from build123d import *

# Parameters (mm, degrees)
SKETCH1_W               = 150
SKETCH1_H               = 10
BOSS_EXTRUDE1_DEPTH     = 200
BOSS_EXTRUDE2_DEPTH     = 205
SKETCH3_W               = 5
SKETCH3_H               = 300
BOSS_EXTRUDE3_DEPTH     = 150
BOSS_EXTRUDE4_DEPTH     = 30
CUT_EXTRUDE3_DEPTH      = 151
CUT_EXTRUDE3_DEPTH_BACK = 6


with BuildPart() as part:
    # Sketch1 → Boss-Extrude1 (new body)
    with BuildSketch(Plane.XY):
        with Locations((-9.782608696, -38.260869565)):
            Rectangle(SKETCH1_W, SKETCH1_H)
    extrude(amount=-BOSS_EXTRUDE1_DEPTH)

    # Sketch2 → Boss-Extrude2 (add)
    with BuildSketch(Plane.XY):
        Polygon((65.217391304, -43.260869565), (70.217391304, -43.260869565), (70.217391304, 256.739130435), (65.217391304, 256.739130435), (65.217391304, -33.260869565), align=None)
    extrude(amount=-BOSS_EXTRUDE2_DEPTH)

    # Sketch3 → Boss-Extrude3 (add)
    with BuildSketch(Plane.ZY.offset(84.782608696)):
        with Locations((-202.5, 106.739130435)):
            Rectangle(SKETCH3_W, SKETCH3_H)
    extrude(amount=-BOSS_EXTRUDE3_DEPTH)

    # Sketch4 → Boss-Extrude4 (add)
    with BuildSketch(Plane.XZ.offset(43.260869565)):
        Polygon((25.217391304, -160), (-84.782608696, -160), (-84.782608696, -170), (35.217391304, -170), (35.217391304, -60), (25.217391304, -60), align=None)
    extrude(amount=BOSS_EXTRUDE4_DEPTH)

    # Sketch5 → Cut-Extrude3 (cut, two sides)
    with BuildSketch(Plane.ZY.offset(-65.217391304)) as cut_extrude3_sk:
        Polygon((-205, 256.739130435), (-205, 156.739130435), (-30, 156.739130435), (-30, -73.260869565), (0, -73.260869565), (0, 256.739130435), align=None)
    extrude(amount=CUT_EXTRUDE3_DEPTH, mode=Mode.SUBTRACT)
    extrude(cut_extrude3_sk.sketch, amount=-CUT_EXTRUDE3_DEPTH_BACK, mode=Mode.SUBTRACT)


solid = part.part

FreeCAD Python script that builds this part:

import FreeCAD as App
import Part
import Sketcher
Q = App.Units.Quantity


def add_polygon(sketch, points):
    """Adds a closed chain of lines whose ends are joined by coincident constraints."""
    first, n = sketch.GeometryCount, len(points)
    for a, b in zip(points, points[1:] + points[:1]):
        sketch.addGeometry(Part.LineSegment(App.Vector(*a, 0), App.Vector(*b, 0)), False)
    for i in range(n):
        sketch.addConstraint(Sketcher.Constraint("Coincident", first + i, 2, first + (i + 1) % n, 1))

doc = App.newDocument("Part")
params = doc.addObject("Spreadsheet::Sheet", "Params")
for row, (alias, value) in enumerate([
    ("sketch1_width", "150 mm"),
    ("sketch1_height", "10 mm"),
    ("pad1_length", "200 mm"),
    ("sketch2_width", "5 mm"),
    ("sketch2_height", "300 mm"),
    ("pad2_length", "205 mm"),
    ("sketch3_width", "300 mm"),
    ("sketch3_height", "5 mm"),
    ("pad3_length", "150 mm"),
    ("sketch4_width", "110 mm"),
    ("sketch4_width2", "120 mm"),
    ("pad4_length", "30 mm"),
    ("sketch5_width", "100 mm"),
    ("sketch5_width2", "230 mm"),
    ("sketch5_height", "175 mm"),
    ("sketch5_height2", "30 mm"),
], start=1):
    params.set(f"A{row}", alias)
    params.set(f"B{row}", "=" + value)
    params.setAlias(f"B{row}", alias)

body = doc.addObject("PartDesign::Body", "Body")

sketch1 = body.newObject("Sketcher::SketchObject", "Sketch")
sketch1.AttachmentSupport = (doc.getObject("XY_Plane"), [""])
sketch1.MapMode = "FlatFace"
add_polygon(sketch1, [(-85, -33), (-85, -43), (65, -43), (65, -33)])
sketch1.addConstraint(Sketcher.Constraint("Vertical", 0))
sketch1.addConstraint(Sketcher.Constraint("Horizontal", 1))
sketch1.addConstraint(Sketcher.Constraint("Vertical", 2))
sketch1.addConstraint(Sketcher.Constraint("Horizontal", 3))
sketch1.addConstraint(Sketcher.Constraint("DistanceX", 1, 1, 1, 2, Q("150 mm")))
sketch1.addConstraint(Sketcher.Constraint("DistanceY", 0, 2, 0, 1, Q("10 mm")))
sketch1.addConstraint(Sketcher.Constraint("DistanceX", 0, 2, -1, 1, Q("84.782609 mm")))
sketch1.addConstraint(Sketcher.Constraint("DistanceY", 0, 2, -1, 1, Q("43.26087 mm")))
sketch1.setExpression("Constraints[8]", "Params.sketch1_width")
sketch1.setExpression("Constraints[9]", "Params.sketch1_height")
pad1 = body.newObject("PartDesign::Pad", "Pad")
pad1.Profile = sketch1
pad1.setExpression("Length", "Params.pad1_length")
pad1.Reversed = True

sketch2 = body.newObject("Sketcher::SketchObject", "Sketch001")
sketch2.AttachmentSupport = (doc.getObject("XY_Plane"), [""])
sketch2.MapMode = "FlatFace"
add_polygon(sketch2, [(65, -43), (70, -43), (70, 257), (65, 257)])
sketch2.addConstraint(Sketcher.Constraint("Horizontal", 0))
sketch2.addConstraint(Sketcher.Constraint("Vertical", 1))
sketch2.addConstraint(Sketcher.Constraint("Horizontal", 2))
sketch2.addConstraint(Sketcher.Constraint("Vertical", 3))
sketch2.addConstraint(Sketcher.Constraint("DistanceX", 0, 1, 0, 2, Q("5 mm")))
sketch2.addConstraint(Sketcher.Constraint("DistanceY", 1, 1, 1, 2, Q("300 mm")))
sketch2.addConstraint(Sketcher.Constraint("DistanceX", -1, 1, 0, 2, Q("70.217391 mm")))
sketch2.addConstraint(Sketcher.Constraint("DistanceY", 0, 2, -1, 1, Q("43.26087 mm")))
sketch2.setExpression("Constraints[8]", "Params.sketch2_width")
sketch2.setExpression("Constraints[9]", "Params.sketch2_height")
pad2 = body.newObject("PartDesign::Pad", "Pad001")
pad2.Profile = sketch2
pad2.setExpression("Length", "Params.pad2_length")
pad2.Reversed = True

sketch3 = body.newObject("Sketcher::SketchObject", "Sketch002")
sketch3.AttachmentSupport = (doc.getObject("YZ_Plane"), [""])
sketch3.MapMode = "FlatFace"
sketch3.AttachmentOffset = App.Placement(App.Vector(0, 0, -84.782609), App.Rotation())
add_polygon(sketch3, [(257, -205), (-43, -205), (-43, -200), (257, -200)])
sketch3.addConstraint(Sketcher.Constraint("Horizontal", 0))
sketch3.addConstraint(Sketcher.Constraint("Vertical", 1))
sketch3.addConstraint(Sketcher.Constraint("Horizontal", 2))
sketch3.addConstraint(Sketcher.Constraint("Vertical", 3))
sketch3.addConstraint(Sketcher.Constraint("DistanceX", 0, 2, 0, 1, Q("300 mm")))
sketch3.addConstraint(Sketcher.Constraint("DistanceY", 1, 1, 1, 2, Q("5 mm")))
sketch3.addConstraint(Sketcher.Constraint("DistanceY", 0, 2, -1, 1, Q("205 mm")))
sketch3.addConstraint(Sketcher.Constraint("DistanceX", 0, 2, -1, 1, Q("43.26087 mm")))
sketch3.setExpression("Constraints[8]", "Params.sketch3_width")
sketch3.setExpression("Constraints[9]", "Params.sketch3_height")
pad3 = body.newObject("PartDesign::Pad", "Pad002")
pad3.Profile = sketch3
pad3.setExpression("Length", "Params.pad3_length")

sketch4 = body.newObject("Sketcher::SketchObject", "Sketch003")
sketch4.AttachmentSupport = (doc.getObject("XZ_Plane"), [""])
sketch4.MapMode = "FlatFace"
sketch4.AttachmentOffset = App.Placement(App.Vector(0, 0, 43.26087), App.Rotation())
add_polygon(sketch4, [(25, -160), (-85, -160), (-85, -170), (35, -170), (35, -60), (25, -60)])
sketch4.addConstraint(Sketcher.Constraint("Horizontal", 0))
sketch4.addConstraint(Sketcher.Constraint("Vertical", 1))
sketch4.addConstraint(Sketcher.Constraint("Horizontal", 2))
sketch4.addConstraint(Sketcher.Constraint("Vertical", 3))
sketch4.addConstraint(Sketcher.Constraint("Horizontal", 4))
sketch4.addConstraint(Sketcher.Constraint("Vertical", 5))
sketch4.addConstraint(Sketcher.Constraint("Equal", 4, 1))
sketch4.addConstraint(Sketcher.Constraint("Equal", 0, 3))
sketch4.addConstraint(Sketcher.Constraint("DistanceX", 0, 2, 0, 1, Q("110 mm")))
sketch4.addConstraint(Sketcher.Constraint("DistanceX", 2, 1, 2, 2, Q("120 mm")))
sketch4.addConstraint(Sketcher.Constraint("DistanceY", 0, 2, -1, 1, Q("160 mm")))
sketch4.addConstraint(Sketcher.Constraint("DistanceX", 0, 2, -1, 1, Q("84.782609 mm")))
sketch4.setExpression("Constraints[14]", "Params.sketch4_width")
sketch4.setExpression("Constraints[15]", "Params.sketch4_width2")
pad4 = body.newObject("PartDesign::Pad", "Pad003")
pad4.Profile = sketch4
pad4.setExpression("Length", "Params.pad4_length")

sketch5 = body.newObject("Sketcher::SketchObject", "Sketch004")
sketch5.AttachmentSupport = (doc.getObject("YZ_Plane"), [""])
sketch5.MapMode = "FlatFace"
sketch5.AttachmentOffset = App.Placement(App.Vector(0, 0, 65.217391), App.Rotation())
add_polygon(sketch5, [(257, -205), (157, -205), (157, -30), (-73, -30), (-73, 0), (257, 0)])
sketch5.addConstraint(Sketcher.Constraint("Horizontal", 0))
sketch5.addConstraint(Sketcher.Constraint("Vertical", 1))
sketch5.addConstraint(Sketcher.Constraint("Horizontal", 2))
sketch5.addConstraint(Sketcher.Constraint("Vertical", 3))
sketch5.addConstraint(Sketcher.Constraint("Horizontal", 4))
sketch5.addConstraint(Sketcher.Constraint("Vertical", 5))
sketch5.addConstraint(Sketcher.Constraint("PointOnObject", 3, 2, -1))
sketch5.addConstraint(Sketcher.Constraint("DistanceX", 0, 2, 0, 1, Q("100 mm")))
sketch5.addConstraint(Sketcher.Constraint("DistanceX", 2, 2, 2, 1, Q("230 mm")))
sketch5.addConstraint(Sketcher.Constraint("DistanceY", 1, 1, 1, 2, Q("175 mm")))
sketch5.addConstraint(Sketcher.Constraint("DistanceY", 3, 1, 3, 2, Q("30 mm")))
sketch5.addConstraint(Sketcher.Constraint("DistanceX", -1, 1, 0, 2, Q("156.73913 mm")))
sketch5.setExpression("Constraints[13]", "Params.sketch5_width")
sketch5.setExpression("Constraints[14]", "Params.sketch5_width2")
sketch5.setExpression("Constraints[15]", "Params.sketch5_height")
sketch5.setExpression("Constraints[16]", "Params.sketch5_height2")
pocket1 = body.newObject("PartDesign::Pocket", "Pocket")
pocket1.Profile = sketch5
pocket1.Type = "ThroughAll"
pocket1.Midplane = True

doc.recompute()
